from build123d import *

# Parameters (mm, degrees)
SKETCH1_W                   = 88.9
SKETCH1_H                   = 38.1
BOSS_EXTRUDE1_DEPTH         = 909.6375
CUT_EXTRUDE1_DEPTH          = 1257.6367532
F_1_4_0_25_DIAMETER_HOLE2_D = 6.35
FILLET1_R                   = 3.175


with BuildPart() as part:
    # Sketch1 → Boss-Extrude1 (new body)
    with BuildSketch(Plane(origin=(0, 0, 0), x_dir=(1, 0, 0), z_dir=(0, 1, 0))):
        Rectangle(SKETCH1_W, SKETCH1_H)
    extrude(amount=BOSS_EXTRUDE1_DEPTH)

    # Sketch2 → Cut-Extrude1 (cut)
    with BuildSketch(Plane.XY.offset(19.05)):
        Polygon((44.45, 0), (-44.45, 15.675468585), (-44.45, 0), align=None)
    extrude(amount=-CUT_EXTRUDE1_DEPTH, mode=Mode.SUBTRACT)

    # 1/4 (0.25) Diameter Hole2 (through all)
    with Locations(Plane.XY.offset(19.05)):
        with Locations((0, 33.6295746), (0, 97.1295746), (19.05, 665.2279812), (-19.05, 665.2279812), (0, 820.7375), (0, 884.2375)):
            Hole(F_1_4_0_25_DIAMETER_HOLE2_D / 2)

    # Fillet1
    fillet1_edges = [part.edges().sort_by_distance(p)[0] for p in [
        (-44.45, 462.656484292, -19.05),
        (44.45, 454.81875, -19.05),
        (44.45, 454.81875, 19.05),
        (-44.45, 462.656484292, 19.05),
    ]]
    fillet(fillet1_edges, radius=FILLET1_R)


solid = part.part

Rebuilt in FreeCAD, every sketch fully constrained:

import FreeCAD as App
import Part
import Sketcher

V = App.Vector
Q = App.Units.Quantity


def edges_at(feature, points):
    """Names of the edges that pass closest to the given points."""
    edges = feature.Shape.Edges
    near = lambda p: min(range(len(edges)), key=lambda i: edges[i].distToShape(Part.Vertex(*p))[0])
    return sorted({f"Edge{near(p) + 1}" for p in points})


def add_polygon(sketch, points):
    """Adds a closed chain of lines whose ends are joined by coincident constraints."""
    first, n = sketch.GeometryCount, len(points)
    for a, b in zip(points, points[1:] + points[:1]):
        sketch.addGeometry(Part.LineSegment(App.Vector(*a, 0), App.Vector(*b, 0)), False)
    for i in range(n):
        sketch.addConstraint(Sketcher.Constraint("Coincident", first + i, 2, first + (i + 1) % n, 1))

doc = App.newDocument("Part")
body = doc.addObject("PartDesign::Body", "Body")

# Sketch on XZ plane
sketch1 = body.newObject("Sketcher::SketchObject", "Sketch")
sketch1.AttachmentSupport = (doc.getObject("XZ_Plane"), [""])
sketch1.MapMode = "FlatFace"
add_polygon(sketch1, [(-44, -19), (-44, 19), (44, 19), (44, -19)])  # lines 0-3
sketch1.addConstraint([
    Sketcher.Constraint("Vertical", 0),
    Sketcher.Constraint("Horizontal", 1),
    Sketcher.Constraint("Vertical", 2),
    Sketcher.Constraint("Horizontal", 3),
    Sketcher.Constraint("Symmetric", 0, 2, 2, 2, -1, 1),
    Sketcher.Constraint("DistanceX", 1, 1, 1, 2, Q("3.5 in")),
    Sketcher.Constraint("DistanceY", 0, 1, 0, 2, Q("1.5 in")),
])
pad1 = body.newObject("PartDesign::Pad", "Pad")
pad1.Profile = sketch1
pad1.Length = Q("35.8125 in")
pad1.Reversed = True

# Sketch on XY plane
sketch2 = body.newObject("Sketcher::SketchObject", "Sketch001")
sketch2.AttachmentSupport = (doc.getObject("XY_Plane"), [""])
sketch2.MapMode = "FlatFace"
sketch2.AttachmentOffset = App.Placement(V(0, 0, 0.75 * 25.4), App.Rotation())
add_polygon(sketch2, [(44, 0), (-44, 16), (-44, 0)])  # lines 0-2
sketch2.addConstraint([
    Sketcher.Constraint("Vertical", 1),
    Sketcher.Constraint("Horizontal", 2),
    Sketcher.Constraint("Symmetric", 1, 2, 2, 2, -1, 1),
    Sketcher.Constraint("DistanceX", 2, 1, 2, 2, Q("3.5 in")),
    Sketcher.Constraint("Angle", 0, Q("170 deg")),
])
pocket1 = body.newObject("PartDesign::Pocket", "Pocket")
pocket1.Profile = sketch2
pocket1.Length = 1257.636753

# Sketch on XY plane
sketch3 = body.newObject("Sketcher::SketchObject", "Sketch002")
sketch3.AttachmentSupport = (doc.getObject("XY_Plane"), [""])
sketch3.MapMode = "FlatFace"
sketch3.AttachmentOffset = App.Placement(V(0, 0, 0.75 * 25.4), App.Rotation())
sketch3.addGeometry([
    Part.Circle(V(0, 33.6, 0), V(0, 0, 1), 3.2),  # 0
    Part.Circle(V(0, 97.1, 0), V(0, 0, 1), 3.2),  # 1
    Part.Circle(V(19.1, 665.2, 0), V(0, 0, 1), 3.2),  # 2
    Part.Circle(V(-19.1, 665.2, 0), V(0, 0, 1), 3.2),  # 3
    Part.Circle(V(0, 820.7, 0), V(0, 0, 1), 3.2),  # 4
    Part.Circle(V(0, 884.2, 0), V(0, 0, 1), 3.2),  # 5
], False)
sketch3.addConstraint([
    Sketcher.Constraint("Equal", 0, 1),
    Sketcher.Constraint("Equal", 1, 2),
    Sketcher.Constraint("Equal", 2, 3),
    Sketcher.Constraint("Equal", 3, 4),
    Sketcher.Constraint("Equal", 4, 5),
    Sketcher.Constraint("Symmetric", 2, 3, 3, 3, -2),
    Sketcher.Constraint("PointOnObject", 0, 3, -2),
    Sketcher.Constraint("PointOnObject", 1, 3, -2),
    Sketcher.Constraint("PointOnObject", 4, 3, -2),
    Sketcher.Constraint("PointOnObject", 5, 3, -2),
    Sketcher.Constraint("Diameter", 0, Q("0.25 in")),
    Sketcher.Constraint("DistanceY", 0, 3, 1, 3, Q("2.5 in")),
    Sketcher.Constraint("DistanceX", 3, 3, 2, 3, Q("1.5 in")),
    Sketcher.Constraint("DistanceY", 4, 3, 5, 3, Q("2.5 in")),
    Sketcher.Constraint("DistanceY", -1, 1, 4, 3, Q("32.3125 in")),
    Sketcher.Constraint("DistanceY", -1, 1, 2, 3, 665.227981),
    Sketcher.Constraint("DistanceY", -1, 1, 0, 3, 33.629575),
])
doc.recompute()
hole = body.newObject("PartDesign::Hole", "Hole")
hole.Profile = sketch3
hole.ThreadType = "None"
hole.Diameter = Q("0.25 in")
hole.DepthType = "ThroughAll"
doc.recompute()

fillet = body.newObject("PartDesign::Fillet", "Fillet")
fillet.Base = (hole, edges_at(hole, [
    (-44.45, 462.656, -19.05),
    (44.45, 454.819, -19.05),
    (44.45, 454.819, 19.05),
    (-44.45, 462.656, 19.05),
]))
fillet.Radius = Q("0.125 in")

doc.recompute()
